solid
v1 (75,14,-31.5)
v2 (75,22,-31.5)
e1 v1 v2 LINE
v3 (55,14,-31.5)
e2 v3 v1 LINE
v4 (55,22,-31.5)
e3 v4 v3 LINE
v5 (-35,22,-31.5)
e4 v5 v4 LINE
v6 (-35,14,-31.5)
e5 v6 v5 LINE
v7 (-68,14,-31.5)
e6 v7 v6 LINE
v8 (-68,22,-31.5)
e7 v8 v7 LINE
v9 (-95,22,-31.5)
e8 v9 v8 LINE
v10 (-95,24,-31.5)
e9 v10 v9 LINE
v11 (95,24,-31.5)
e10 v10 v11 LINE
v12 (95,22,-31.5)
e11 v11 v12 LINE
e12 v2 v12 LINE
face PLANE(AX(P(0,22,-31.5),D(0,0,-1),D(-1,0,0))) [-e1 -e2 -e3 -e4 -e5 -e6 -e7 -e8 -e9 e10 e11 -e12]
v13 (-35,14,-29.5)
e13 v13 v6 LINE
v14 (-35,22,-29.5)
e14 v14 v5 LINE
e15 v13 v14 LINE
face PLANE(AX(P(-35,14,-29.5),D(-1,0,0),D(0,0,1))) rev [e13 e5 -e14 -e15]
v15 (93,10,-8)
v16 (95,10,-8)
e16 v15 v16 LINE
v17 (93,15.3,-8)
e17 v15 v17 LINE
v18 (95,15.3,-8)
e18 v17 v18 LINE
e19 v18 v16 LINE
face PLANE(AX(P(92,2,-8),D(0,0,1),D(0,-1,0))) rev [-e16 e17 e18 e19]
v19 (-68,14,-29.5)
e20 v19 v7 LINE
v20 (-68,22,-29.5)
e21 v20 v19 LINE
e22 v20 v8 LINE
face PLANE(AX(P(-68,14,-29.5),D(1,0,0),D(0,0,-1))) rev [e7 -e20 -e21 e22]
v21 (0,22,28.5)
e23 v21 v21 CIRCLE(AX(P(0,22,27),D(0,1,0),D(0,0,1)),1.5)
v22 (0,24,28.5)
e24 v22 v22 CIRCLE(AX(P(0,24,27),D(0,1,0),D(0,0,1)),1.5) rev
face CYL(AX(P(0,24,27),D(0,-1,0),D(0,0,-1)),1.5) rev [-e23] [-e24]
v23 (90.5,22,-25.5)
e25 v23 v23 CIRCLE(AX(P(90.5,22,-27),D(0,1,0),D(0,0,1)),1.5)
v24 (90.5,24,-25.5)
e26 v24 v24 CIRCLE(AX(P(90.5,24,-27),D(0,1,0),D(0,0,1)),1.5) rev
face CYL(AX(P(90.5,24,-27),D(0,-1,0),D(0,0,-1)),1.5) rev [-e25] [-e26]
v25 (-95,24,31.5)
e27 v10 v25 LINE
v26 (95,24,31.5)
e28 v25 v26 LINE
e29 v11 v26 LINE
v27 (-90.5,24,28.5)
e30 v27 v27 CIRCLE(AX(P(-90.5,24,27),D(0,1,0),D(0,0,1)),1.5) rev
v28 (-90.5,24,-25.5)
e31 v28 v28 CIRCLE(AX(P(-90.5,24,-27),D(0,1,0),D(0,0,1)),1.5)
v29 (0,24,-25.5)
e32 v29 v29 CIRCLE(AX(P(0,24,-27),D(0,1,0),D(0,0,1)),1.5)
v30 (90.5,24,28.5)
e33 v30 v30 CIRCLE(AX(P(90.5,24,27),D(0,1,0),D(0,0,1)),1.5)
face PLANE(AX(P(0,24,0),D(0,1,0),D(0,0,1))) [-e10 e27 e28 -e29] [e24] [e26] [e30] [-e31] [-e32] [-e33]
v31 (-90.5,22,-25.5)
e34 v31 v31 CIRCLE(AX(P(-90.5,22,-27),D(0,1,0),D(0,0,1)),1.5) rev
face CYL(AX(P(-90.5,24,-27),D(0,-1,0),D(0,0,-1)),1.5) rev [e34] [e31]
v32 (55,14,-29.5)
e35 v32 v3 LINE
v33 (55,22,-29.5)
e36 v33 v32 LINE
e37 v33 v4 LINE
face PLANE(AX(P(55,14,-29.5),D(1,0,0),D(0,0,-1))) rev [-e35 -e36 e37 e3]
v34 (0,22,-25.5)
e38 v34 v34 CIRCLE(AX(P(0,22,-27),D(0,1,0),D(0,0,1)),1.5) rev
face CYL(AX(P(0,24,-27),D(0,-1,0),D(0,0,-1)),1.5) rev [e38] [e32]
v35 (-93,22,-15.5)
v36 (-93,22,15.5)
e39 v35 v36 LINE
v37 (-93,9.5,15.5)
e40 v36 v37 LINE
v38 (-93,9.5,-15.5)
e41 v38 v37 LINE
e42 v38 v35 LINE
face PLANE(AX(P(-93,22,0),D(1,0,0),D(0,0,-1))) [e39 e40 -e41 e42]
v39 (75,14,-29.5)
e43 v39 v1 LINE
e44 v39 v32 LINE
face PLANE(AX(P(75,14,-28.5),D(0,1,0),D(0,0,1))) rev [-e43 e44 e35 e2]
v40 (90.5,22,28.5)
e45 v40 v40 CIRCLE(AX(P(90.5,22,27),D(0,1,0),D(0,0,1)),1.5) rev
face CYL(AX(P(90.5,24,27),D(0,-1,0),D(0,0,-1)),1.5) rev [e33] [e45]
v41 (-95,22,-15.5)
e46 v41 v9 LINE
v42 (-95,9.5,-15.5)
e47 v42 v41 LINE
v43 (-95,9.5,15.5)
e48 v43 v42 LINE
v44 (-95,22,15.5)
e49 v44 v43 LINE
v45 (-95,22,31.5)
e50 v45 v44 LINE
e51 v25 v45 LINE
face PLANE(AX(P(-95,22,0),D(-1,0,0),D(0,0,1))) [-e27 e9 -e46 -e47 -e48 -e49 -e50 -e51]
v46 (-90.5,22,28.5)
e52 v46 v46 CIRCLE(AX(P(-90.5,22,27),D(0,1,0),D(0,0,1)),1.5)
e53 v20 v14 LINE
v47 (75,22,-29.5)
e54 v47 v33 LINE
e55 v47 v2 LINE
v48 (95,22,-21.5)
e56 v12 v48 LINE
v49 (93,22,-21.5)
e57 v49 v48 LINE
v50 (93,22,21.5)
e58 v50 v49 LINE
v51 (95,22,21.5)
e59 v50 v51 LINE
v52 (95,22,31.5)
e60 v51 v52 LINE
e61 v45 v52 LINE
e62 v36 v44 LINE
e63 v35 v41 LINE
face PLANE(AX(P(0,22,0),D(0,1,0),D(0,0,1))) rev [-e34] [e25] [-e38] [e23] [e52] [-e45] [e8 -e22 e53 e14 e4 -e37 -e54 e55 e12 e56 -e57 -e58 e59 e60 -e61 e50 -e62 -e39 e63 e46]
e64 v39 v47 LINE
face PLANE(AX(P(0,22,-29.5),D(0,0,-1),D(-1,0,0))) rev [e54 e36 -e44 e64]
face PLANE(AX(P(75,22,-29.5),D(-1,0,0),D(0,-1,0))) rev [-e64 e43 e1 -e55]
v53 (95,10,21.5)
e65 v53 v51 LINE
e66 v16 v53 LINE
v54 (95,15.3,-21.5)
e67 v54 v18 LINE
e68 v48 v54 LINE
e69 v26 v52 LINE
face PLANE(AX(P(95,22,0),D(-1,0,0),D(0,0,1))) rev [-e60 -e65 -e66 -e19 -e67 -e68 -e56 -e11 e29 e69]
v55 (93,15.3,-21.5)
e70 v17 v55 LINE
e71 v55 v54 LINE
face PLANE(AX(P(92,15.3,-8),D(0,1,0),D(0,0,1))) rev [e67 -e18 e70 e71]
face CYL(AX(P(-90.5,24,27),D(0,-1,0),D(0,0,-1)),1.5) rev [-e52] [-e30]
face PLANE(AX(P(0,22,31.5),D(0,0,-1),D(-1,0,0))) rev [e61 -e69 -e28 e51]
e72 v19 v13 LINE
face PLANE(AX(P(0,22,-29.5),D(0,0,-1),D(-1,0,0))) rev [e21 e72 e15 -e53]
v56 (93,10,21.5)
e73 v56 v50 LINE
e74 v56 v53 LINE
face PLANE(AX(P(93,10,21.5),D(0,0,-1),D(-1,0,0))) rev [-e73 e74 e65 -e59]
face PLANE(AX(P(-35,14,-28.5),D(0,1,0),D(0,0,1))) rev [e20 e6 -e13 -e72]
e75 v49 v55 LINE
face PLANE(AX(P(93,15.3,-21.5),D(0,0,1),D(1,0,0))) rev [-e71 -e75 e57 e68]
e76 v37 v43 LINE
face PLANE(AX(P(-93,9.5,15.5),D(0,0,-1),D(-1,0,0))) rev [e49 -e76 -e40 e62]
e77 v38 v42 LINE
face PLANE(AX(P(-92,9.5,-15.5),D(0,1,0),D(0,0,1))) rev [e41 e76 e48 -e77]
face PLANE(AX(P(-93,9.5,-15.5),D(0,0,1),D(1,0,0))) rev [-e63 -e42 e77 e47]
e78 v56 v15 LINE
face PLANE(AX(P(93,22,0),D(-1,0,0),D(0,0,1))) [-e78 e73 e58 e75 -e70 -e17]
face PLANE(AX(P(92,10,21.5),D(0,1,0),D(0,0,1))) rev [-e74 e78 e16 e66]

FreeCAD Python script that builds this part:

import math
import FreeCAD as App
import Part
import Sketcher
Q = App.Units.Quantity


def add_polygon(sketch, points):
    """Adds a closed chain of lines whose ends are joined by coincident constraints."""
    first, n = sketch.GeometryCount, len(points)
    for a, b in zip(points, points[1:] + points[:1]):
        sketch.addGeometry(Part.LineSegment(App.Vector(*a, 0), App.Vector(*b, 0)), False)
    for i in range(n):
        sketch.addConstraint(Sketcher.Constraint("Coincident", first + i, 2, first + (i + 1) % n, 1))

doc = App.newDocument("Part")
body = doc.addObject("PartDesign::Body", "Body")

sketch1 = body.newObject("Sketcher::SketchObject", "Sketch")
sketch1.AttachmentSupport = (doc.getObject("XZ_Plane"), [""])
sketch1.MapMode = "FlatFace"
sketch1.addGeometry(Part.ArcOfCircle(Part.Circle(App.Vector(90.5, -27, 0), App.Vector(0, 0, 1), 4.5), math.radians(90), math.radians(180)), False)
sketch1.addGeometry(Part.LineSegment(App.Vector(86, -27, 0), App.Vector(86, -29.5, 0)), False)
sketch1.addGeometry(Part.LineSegment(App.Vector(86, -29.5, 0), App.Vector(4.5, -29.5, 0)), False)
sketch1.addGeometry(Part.LineSegment(App.Vector(4.5, -29.5, 0), App.Vector(4.5, -27, 0)), False)
sketch1.addGeometry(Part.ArcOfCircle(Part.Circle(App.Vector(0, -27, 0), App.Vector(0, 0, 1), 4.5), math.radians(0), math.radians(180)), False)
sketch1.addGeometry(Part.LineSegment(App.Vector(-4.5, -27, 0), App.Vector(-4.5, -29.5, 0)), False)
sketch1.addGeometry(Part.LineSegment(App.Vector(-4.5, -29.5, 0), App.Vector(-86, -29.5, 0)), False)
sketch1.addGeometry(Part.LineSegment(App.Vector(-86, -29.5, 0), App.Vector(-86, -27, 0)), False)
sketch1.addGeometry(Part.ArcOfCircle(Part.Circle(App.Vector(-90.5, -27, 0), App.Vector(0, 0, 1), 4.5), math.radians(0), math.radians(90)), False)
sketch1.addGeometry(Part.LineSegment(App.Vector(-90.5, -22.5, 0), App.Vector(-93, -22.5, 0)), False)
sketch1.addGeometry(Part.LineSegment(App.Vector(-93, -22.5, 0), App.Vector(-93, 22.5, 0)), False)
sketch1.addGeometry(Part.LineSegment(App.Vector(-93, 22.5, 0), App.Vector(-90.5, 22.5, 0)), False)
sketch1.addGeometry(Part.ArcOfCircle(Part.Circle(App.Vector(-90.5, 27, 0), App.Vector(0, 0, 1), 4.5), math.radians(-90), math.radians(0)), False)
sketch1.addGeometry(Part.LineSegment(App.Vector(-86, 27, 0), App.Vector(-86, 29.5, 0)), False)
sketch1.addGeometry(Part.LineSegment(App.Vector(-86, 29.5, 0), App.Vector(-4.5, 29.5, 0)), False)
sketch1.addGeometry(Part.LineSegment(App.Vector(-4.5, 29.5, 0), App.Vector(-4.5, 27, 0)), False)
sketch1.addGeometry(Part.ArcOfCircle(Part.Circle(App.Vector(0, 27, 0), App.Vector(0, 0, 1), 4.5), math.radians(180), math.radians(360)), False)
sketch1.addGeometry(Part.LineSegment(App.Vector(4.5, 27, 0), App.Vector(4.5, 29.5, 0)), False)
sketch1.addGeometry(Part.LineSegment(App.Vector(4.5, 29.5, 0), App.Vector(86, 29.5, 0)), False)
sketch1.addGeometry(Part.LineSegment(App.Vector(86, 29.5, 0), App.Vector(86, 27, 0)), False)
sketch1.addGeometry(Part.ArcOfCircle(Part.Circle(App.Vector(90.5, 27, 0), App.Vector(0, 0, 1), 4.5), math.radians(-180), math.radians(-90)), False)
sketch1.addGeometry(Part.LineSegment(App.Vector(90.5, 22.5, 0), App.Vector(93, 22.5, 0)), False)
sketch1.addGeometry(Part.LineSegment(App.Vector(93, 22.5, 0), App.Vector(93, -22.5, 0)), False)
sketch1.addGeometry(Part.LineSegment(App.Vector(93, -22.5, 0), App.Vector(90.5, -22.5, 0)), False)
sketch1.addConstraint(Sketcher.Constraint("Tangent", 0, 2, 1, 1))
sketch1.addConstraint(Sketcher.Constraint("Coincident", 1, 2, 2, 1))
sketch1.addConstraint(Sketcher.Constraint("Coincident", 2, 2, 3, 1))
sketch1.addConstraint(Sketcher.Constraint("Tangent", 3, 2, 4, 1))
sketch1.addConstraint(Sketcher.Constraint("Tangent", 4, 2, 5, 1))
sketch1.addConstraint(Sketcher.Constraint("Coincident", 5, 2, 6, 1))
sketch1.addConstraint(Sketcher.Constraint("Coincident", 6, 2, 7, 1))
sketch1.addConstraint(Sketcher.Constraint("Tangent", 7, 2, 8, 1))
sketch1.addConstraint(Sketcher.Constraint("Tangent", 8, 2, 9, 1))
sketch1.addConstraint(Sketcher.Constraint("Coincident", 9, 2, 10, 1))
sketch1.addConstraint(Sketcher.Constraint("Coincident", 10, 2, 11, 1))
sketch1.addConstraint(Sketcher.Constraint("Tangent", 11, 2, 12, 1))
sketch1.addConstraint(Sketcher.Constraint("Tangent", 12, 2, 13, 1))
sketch1.addConstraint(Sketcher.Constraint("Coincident", 13, 2, 14, 1))
sketch1.addConstraint(Sketcher.Constraint("Coincident", 14, 2, 15, 1))
sketch1.addConstraint(Sketcher.Constraint("Tangent", 15, 2, 16, 1))
sketch1.addConstraint(Sketcher.Constraint("Tangent", 16, 2, 17, 1))
sketch1.addConstraint(Sketcher.Constraint("Coincident", 17, 2, 18, 1))
sketch1.addConstraint(Sketcher.Constraint("Coincident", 18, 2, 19, 1))
sketch1.addConstraint(Sketcher.Constraint("Tangent", 19, 2, 20, 1))
sketch1.addConstraint(Sketcher.Constraint("Tangent", 20, 2, 21, 1))
sketch1.addConstraint(Sketcher.Constraint("Coincident", 21, 2, 22, 1))
sketch1.addConstraint(Sketcher.Constraint("Coincident", 22, 2, 23, 1))
sketch1.addConstraint(Sketcher.Constraint("Tangent", 23, 2, 0, 1))
sketch1.addConstraint(Sketcher.Constraint("Vertical", 1))
sketch1.addConstraint(Sketcher.Constraint("Horizontal", 2))
sketch1.addConstraint(Sketcher.Constraint("Vertical", 3))
sketch1.addConstraint(Sketcher.Constraint("Vertical", 5))
sketch1.addConstraint(Sketcher.Constraint("Horizontal", 6))
sketch1.addConstraint(Sketcher.Constraint("Vertical", 7))
sketch1.addConstraint(Sketcher.Constraint("Horizontal", 9))
sketch1.addConstraint(Sketcher.Constraint("Vertical", 10))
sketch1.addConstraint(Sketcher.Constraint("Horizontal", 11))
sketch1.addConstraint(Sketcher.Constraint("Vertical", 13))
sketch1.addConstraint(Sketcher.Constraint("Horizontal", 14))
sketch1.addConstraint(Sketcher.Constraint("Vertical", 15))
sketch1.addConstraint(Sketcher.Constraint("Vertical", 17))
sketch1.addConstraint(Sketcher.Constraint("Horizontal", 18))
sketch1.addConstraint(Sketcher.Constraint("Vertical", 19))
sketch1.addConstraint(Sketcher.Constraint("Horizontal", 21))
sketch1.addConstraint(Sketcher.Constraint("Vertical", 22))
sketch1.addConstraint(Sketcher.Constraint("Horizontal", 23))
sketch1.addConstraint(Sketcher.Constraint("Equal", 0, 4))
sketch1.addConstraint(Sketcher.Constraint("Equal", 4, 8))
sketch1.addConstraint(Sketcher.Constraint("Equal", 8, 12))
sketch1.addConstraint(Sketcher.Constraint("Equal", 12, 16))
sketch1.addConstraint(Sketcher.Constraint("Equal", 16, 20))
sketch1.addConstraint(Sketcher.Constraint("Symmetric", 0, 3, 12, 3, -1, 1))
sketch1.addConstraint(Sketcher.Constraint("Symmetric", 4, 3, 16, 3, -1, 1))
sketch1.addConstraint(Sketcher.Constraint("Symmetric", 8, 3, 20, 3, -1, 1))
sketch1.addConstraint(Sketcher.Constraint("Symmetric", 0, 3, 8, 3, -2))
sketch1.addConstraint(Sketcher.Constraint("Symmetric", 2, 2, 5, 2, -2))
sketch1.addConstraint(Sketcher.Constraint("Horizontal", 0, 3, 4, 3))
sketch1.addConstraint(Sketcher.Constraint("Horizontal", 14, 2, 17, 2))
sketch1.addConstraint(Sketcher.Constraint("Equal", 11, 21))
sketch1.addConstraint(Sketcher.Constraint("Equal", 23, 1))
sketch1.addConstraint(Sketcher.Constraint("Equal", 7, 13))
sketch1.addConstraint(Sketcher.Constraint("Radius", 0, Q("4.5 mm")))
sketch1.addConstraint(Sketcher.Constraint("DistanceY", 10, 1, 10, 2, Q("45 mm")))
sketch1.addConstraint(Sketcher.Constraint("DistanceX", 2, 2, 2, 1, Q("81.5 mm")))
sketch1.addConstraint(Sketcher.Constraint("DistanceX", 9, 2, 9, 1, Q("2.5 mm")))
pad1 = body.newObject("PartDesign::Pad", "Pad")
pad1.Profile = sketch1
pad1.Length = 2
pad1.Reversed = True
body2 = doc.addObject("PartDesign::Body", "Body001")

sketch2 = body2.newObject("Sketcher::SketchObject", "Sketch001")
sketch2.AttachmentSupport = (doc.getObject("XZ_Plane001"), [""])
sketch2.MapMode = "FlatFace"
sketch2.addGeometry(Part.Circle(App.Vector(90.5, -27, 0), App.Vector(0, 0, 1), 1.5), False)
sketch2.addConstraint(Sketcher.Constraint("Diameter", 0, Q("3 mm")))
sketch2.addConstraint(Sketcher.Constraint("DistanceY", 0, 3, -1, 1, Q("27 mm")))
sketch2.addConstraint(Sketcher.Constraint("DistanceX", -1, 1, 0, 3, Q("90.5 mm")))
pad2 = body2.newObject("PartDesign::Pad", "Pad001")
pad2.Profile = sketch2
pad2.Length = 19
pad2.Reversed = True
body3 = doc.addObject("PartDesign::Body", "Body002")

sketch3 = body3.newObject("Sketcher::SketchObject", "Sketch002")
sketch3.AttachmentSupport = (doc.getObject("XZ_Plane002"), [""])
sketch3.MapMode = "FlatFace"
sketch3.addGeometry(Part.Circle(App.Vector(90.5, 27, 0), App.Vector(0, 0, 1), 1.5), False)
sketch3.addConstraint(Sketcher.Constraint("Diameter", 0, Q("3 mm")))
sketch3.addConstraint(Sketcher.Constraint("DistanceY", -1, 1, 0, 3, Q("27 mm")))
sketch3.addConstraint(Sketcher.Constraint("DistanceX", -1, 1, 0, 3, Q("90.5 mm")))
pad3 = body3.newObject("PartDesign::Pad", "Pad002")
pad3.Profile = sketch3
pad3.Length = 19
pad3.Reversed = True
body4 = doc.addObject("PartDesign::Body", "Body003")

sketch4 = body4.newObject("Sketcher::SketchObject", "Sketch003")
sketch4.AttachmentSupport = (doc.getObject("XZ_Plane003"), [""])
sketch4.MapMode = "FlatFace"
sketch4.addGeometry(Part.Circle(App.Vector(0, 27, 0), App.Vector(0, 0, 1), 1.5), False)
sketch4.addConstraint(Sketcher.Constraint("PointOnObject", 0, 3, -2))
sketch4.addConstraint(Sketcher.Constraint("Diameter", 0, Q("3 mm")))
sketch4.addConstraint(Sketcher.Constraint("DistanceY", -1, 1, 0, 3, Q("27 mm")))
pad4 = body4.newObject("PartDesign::Pad", "Pad003")
pad4.Profile = sketch4
pad4.Length = 19
pad4.Reversed = True
body5 = doc.addObject("PartDesign::Body", "Body004")

sketch5 = body5.newObject("Sketcher::SketchObject", "Sketch004")
sketch5.AttachmentSupport = (doc.getObject("XZ_Plane004"), [""])
sketch5.MapMode = "FlatFace"
sketch5.addGeometry(Part.Circle(App.Vector(0, -27, 0), App.Vector(0, 0, 1), 1.5), False)
sketch5.addConstraint(Sketcher.Constraint("PointOnObject", 0, 3, -2))
sketch5.addConstraint(Sketcher.Constraint("Diameter", 0, Q("3 mm")))
sketch5.addConstraint(Sketcher.Constraint("DistanceY", 0, 3, -1, 1, Q("27 mm")))
pad5 = body5.newObject("PartDesign::Pad", "Pad004")
pad5.Profile = sketch5
pad5.Length = 19
pad5.Reversed = True
body6 = doc.addObject("PartDesign::Body", "Body005")

sketch6 = body6.newObject("Sketcher::SketchObject", "Sketch005")
sketch6.AttachmentSupport = (doc.getObject("XZ_Plane005"), [""])
sketch6.MapMode = "FlatFace"
sketch6.addGeometry(Part.Circle(App.Vector(-90.5, -27, 0), App.Vector(0, 0, 1), 1.5), False)
sketch6.addConstraint(Sketcher.Constraint("Diameter", 0, Q("3 mm")))
sketch6.addConstraint(Sketcher.Constraint("DistanceY", 0, 3, -1, 1, Q("27 mm")))
sketch6.addConstraint(Sketcher.Constraint("DistanceX", 0, 3, -1, 1, Q("90.5 mm")))
pad6 = body6.newObject("PartDesign::Pad", "Pad005")
pad6.Profile = sketch6
pad6.Length = 19
pad6.Reversed = True
body7 = doc.addObject("PartDesign::Body", "Body006")

sketch7 = body7.newObject("Sketcher::SketchObject", "Sketch006")
sketch7.AttachmentSupport = (doc.getObject("XZ_Plane006"), [""])
sketch7.MapMode = "FlatFace"
sketch7.addGeometry(Part.Circle(App.Vector(-90.5, 27, 0), App.Vector(0, 0, 1), 1.5), False)
sketch7.addConstraint(Sketcher.Constraint("Diameter", 0, Q("3 mm")))
sketch7.addConstraint(Sketcher.Constraint("DistanceY", -1, 1, 0, 3, Q("27 mm")))
sketch7.addConstraint(Sketcher.Constraint("DistanceX", 0, 3, -1, 1, Q("90.5 mm")))
pad7 = body7.newObject("PartDesign::Pad", "Pad006")
pad7.Profile = sketch7
pad7.Length = 19
pad7.Reversed = True
body2.AllowCompound = True
doc.recompute()

boolean = body2.newObject("PartDesign::Boolean", "Boolean")
boolean.Type = "Fuse"
boolean.addObjects([body3])
doc.recompute()

boolean2 = body2.newObject("PartDesign::Boolean", "Boolean001")
boolean2.Type = "Fuse"
boolean2.addObjects([body4])
doc.recompute()

boolean3 = body2.newObject("PartDesign::Boolean", "Boolean002")
boolean3.Type = "Fuse"
boolean3.addObjects([body5])
doc.recompute()

boolean4 = body2.newObject("PartDesign::Boolean", "Boolean003")
boolean4.Type = "Fuse"
boolean4.addObjects([body6])
doc.recompute()

boolean5 = body2.newObject("PartDesign::Boolean", "Boolean004")
boolean5.Type = "Fuse"
boolean5.addObjects([body7])

sketch8 = body2.newObject("Sketcher::SketchObject", "Sketch007")
sketch8.AttachmentSupport = (doc.getObject("XZ_Plane001"), [""])
sketch8.MapMode = "FlatFace"
add_polygon(sketch8, [(92, -24.401924), (93.5, -27), (92, -29.598076), (89, -29.598076), (87.5, -27), (89, -24.401924)])
sketch8.addGeometry(Part.Circle(App.Vector(90.5, -27, 0), App.Vector(0, 0, 1), 1.5), False)
add_polygon(sketch8, [(89, 29.598076), (92, 29.598076), (93.5, 27), (92, 24.401924), (89, 24.401924), (87.5, 27)])
sketch8.addGeometry(Part.Circle(App.Vector(90.5, 27, 0), App.Vector(0, 0, 1), 1.5), False)
add_polygon(sketch8, [(1.5, 29.598076), (3, 27), (1.5, 24.401924), (-1.5, 24.401924), (-3, 27), (-1.5, 29.598076)])
sketch8.addGeometry(Part.Circle(App.Vector(0, 27, 0), App.Vector(0, 0, 1), 1.5), False)
add_polygon(sketch8, [(-1.5, -24.401924), (1.5, -24.401924), (3, -27), (1.5, -29.598076), (-1.5, -29.598076), (-3, -27)])
sketch8.addGeometry(Part.Circle(App.Vector(0, -27, 0), App.Vector(0, 0, 1), 1.5), False)
add_polygon(sketch8, [(-92, 24.401924), (-93.5, 27), (-92, 29.598076), (-89, 29.598076), (-87.5, 27), (-89, 24.401924)])
sketch8.addGeometry(Part.Circle(App.Vector(-90.5, 27, 0), App.Vector(0, 0, 1), 1.5), False)
add_polygon(sketch8, [(-89, -29.598076), (-92, -29.598076), (-93.5, -27), (-92, -24.401924), (-89, -24.401924), (-87.5, -27)])
sketch8.addGeometry(Part.Circle(App.Vector(-90.5, -27, 0), App.Vector(0, 0, 1), 1.5), False)
sketch8.addConstraint(Sketcher.Constraint("Horizontal", 2))
sketch8.addConstraint(Sketcher.Constraint("Horizontal", 5))
sketch8.addConstraint(Sketcher.Constraint("Horizontal", 7))
sketch8.addConstraint(Sketcher.Constraint("Horizontal", 10))
sketch8.addConstraint(Sketcher.Constraint("Horizontal", 16))
sketch8.addConstraint(Sketcher.Constraint("Horizontal", 19))
sketch8.addConstraint(Sketcher.Constraint("Horizontal", 21))
sketch8.addConstraint(Sketcher.Constraint("Horizontal", 24))
sketch8.addConstraint(Sketcher.Constraint("Horizontal", 30))
sketch8.addConstraint(Sketcher.Constraint("Horizontal", 33))
sketch8.addConstraint(Sketcher.Constraint("Horizontal", 35))
sketch8.addConstraint(Sketcher.Constraint("Horizontal", 38))
sketch8.addConstraint(Sketcher.Constraint("Equal", 6, 13))
sketch8.addConstraint(Sketcher.Constraint("Equal", 13, 20))
sketch8.addConstraint(Sketcher.Constraint("Equal", 20, 27))
sketch8.addConstraint(Sketcher.Constraint("Equal", 27, 34))
sketch8.addConstraint(Sketcher.Constraint("Equal", 34, 41))
sketch8.addConstraint(Sketcher.Constraint("Symmetric", 20, 3, 27, 3, -1, 1))
sketch8.addConstraint(Sketcher.Constraint("Symmetric", 6, 3, 34, 3, -1, 1))
sketch8.addConstraint(Sketcher.Constraint("Symmetric", 13, 3, 41, 3, -1, 1))
sketch8.addConstraint(Sketcher.Constraint("Symmetric", 16, 2, 21, 2, -1, 1))
sketch8.addConstraint(Sketcher.Constraint("Symmetric", 17, 2, 22, 2, -1, 1))
sketch8.addConstraint(Sketcher.Constraint("Symmetric", 18, 2, 23, 2, -1, 1))
sketch8.addConstraint(Sketcher.Constraint("Symmetric", 14, 2, 25, 2, -1, 1))
sketch8.addConstraint(Sketcher.Constraint("Symmetric", 0, 2, 28, 2, -1, 1))
sketch8.addConstraint(Sketcher.Constraint("Symmetric", 1, 2, 29, 2, -1, 1))
sketch8.addConstraint(Sketcher.Constraint("Symmetric", 3, 2, 31, 2, -1, 1))
sketch8.addConstraint(Sketcher.Constraint("Symmetric", 4, 2, 32, 2, -1, 1))
sketch8.addConstraint(Sketcher.Constraint("Symmetric", 7, 2, 35, 2, -1, 1))
sketch8.addConstraint(Sketcher.Constraint("Symmetric", 8, 2, 36, 2, -1, 1))
sketch8.addConstraint(Sketcher.Constraint("Symmetric", 9, 2, 37, 2, -1, 1))
sketch8.addConstraint(Sketcher.Constraint("Symmetric", 11, 2, 39, 2, -1, 1))
sketch8.addConstraint(Sketcher.Constraint("Symmetric", 13, 3, 34, 3, -2))
sketch8.addConstraint(Sketcher.Constraint("Symmetric", 14, 2, 17, 2, -2))
sketch8.addConstraint(Sketcher.Constraint("Symmetric", 8, 2, 28, 2, -2))
sketch8.addConstraint(Sketcher.Constraint("Symmetric", 7, 2, 29, 2, -2))
sketch8.addConstraint(Sketcher.Constraint("Symmetric", 11, 2, 31, 2, -2))
sketch8.addConstraint(Sketcher.Constraint("Symmetric", 10, 2, 32, 2, -2))
sketch8.addConstraint(Sketcher.Constraint("PointOnObject", 20, 3, -2))
sketch8.addConstraint(Sketcher.Constraint("Parallel", 0, 3))
sketch8.addConstraint(Sketcher.Constraint("Parallel", 1, 4))
sketch8.addConstraint(Sketcher.Constraint("Parallel", 3, 8))
sketch8.addConstraint(Sketcher.Constraint("Parallel", 4, 9))
sketch8.addConstraint(Sketcher.Constraint("Parallel", 9, 12))
sketch8.addConstraint(Sketcher.Constraint("Parallel", 11, 14))
sketch8.addConstraint(Sketcher.Constraint("Parallel", 12, 15))
sketch8.addConstraint(Sketcher.Constraint("Parallel", 14, 17))
sketch8.addConstraint(Sketcher.Constraint("Parallel", 15, 18))
sketch8.addConstraint(Sketcher.Constraint("Parallel", 22, 25))
sketch8.addConstraint(Sketcher.Constraint("Parallel", 23, 26))
sketch8.addConstraint(Sketcher.Constraint("Parallel", 25, 28))
sketch8.addConstraint(Sketcher.Constraint("Parallel", 28, 31))
sketch8.addConstraint(Sketcher.Constraint("Parallel", 36, 39))
sketch8.addConstraint(Sketcher.Constraint("Parallel", 37, 40))
sketch8.addConstraint(Sketcher.Constraint("Horizontal", 13, 3, 20, 3))
sketch8.addConstraint(Sketcher.Constraint("Horizontal", 41, 3, 0, 2))
sketch8.addConstraint(Sketcher.Constraint("Horizontal", 0, 2, 3, 2))
sketch8.addConstraint(Sketcher.Constraint("Horizontal", 11, 2, 14, 2))
sketch8.addConstraint(Sketcher.Constraint("Horizontal", 10, 2, 15, 2))
sketch8.addConstraint(Sketcher.Constraint("Horizontal", 12, 2, 18, 2))
sketch8.addConstraint(Sketcher.Constraint("Vertical", 2, 2, 4, 2))
sketch8.addConstraint(Sketcher.Constraint("Equal", 10, 16))
sketch8.addConstraint(Sketcher.Constraint("Diameter", 6, Q("3 mm")))
sketch8.addConstraint(Sketcher.Constraint("DistanceX", 2, 2, 2, 1, Q("3 mm")))
sketch8.addConstraint(Sketcher.Constraint("Angle", 0, Q("-60 deg")))
sketch8.addConstraint(Sketcher.Constraint("Distance", 0, Q("3 mm")))
sketch8.addConstraint(Sketcher.Constraint("DistanceY", 6, 3, -1, 1, Q("27 mm")))
sketch8.addConstraint(Sketcher.Constraint("DistanceX", -1, 1, 1, 2, Q("92 mm")))
sketch8.addConstraint(Sketcher.Constraint("DistanceX", 34, 3, 13, 3, Q("181 mm")))
pad8 = body2.newObject("PartDesign::Pad", "Pad007")
pad8.Profile = sketch8
pad8.Length = 20
pad8.Reversed = True
body.AllowCompound = True
doc.recompute()

boolean6 = body.newObject("PartDesign::Boolean", "Boolean005")
boolean6.Type = "Fuse"
boolean6.addObjects([body2])

sketch9 = body.newObject("Sketcher::SketchObject", "Sketch008")
sketch9.AttachmentSupport = (doc.getObject("XZ_Plane"), [""])
sketch9.MapMode = "FlatFace"
add_polygon(sketch9, [(-95, 31.5), (95, 31.5), (95, -31.5), (-95, -31.5)])
add_polygon(sketch9, [(-87.5, 27), (-89, 29.598076), (-92, 29.598076), (-93.5, 27), (-92, 24.401924), (-89, 24.401924)])
add_polygon(sketch9, [(-3, 27), (-1.5, 24.401924), (1.5, 24.401924), (3, 27), (1.5, 29.598076), (-1.5, 29.598076)])
add_polygon(sketch9, [(93.5, 27), (92, 29.598076), (89, 29.598076), (87.5, 27), (89, 24.401924), (92, 24.401924)])
sketch9.addGeometry(Part.LineSegment(App.Vector(-90.5, 22.5, 0), App.Vector(-93, 22.5, 0)), False)
sketch9.addGeometry(Part.LineSegment(App.Vector(-93, 22.5, 0), App.Vector(-93, -22.5, 0)), False)
sketch9.addGeometry(Part.LineSegment(App.Vector(-93, -22.5, 0), App.Vector(-90.5, -22.5, 0)), False)
sketch9.addGeometry(Part.ArcOfCircle(Part.Circle(App.Vector(-90.5, -27, 0), App.Vector(0, 0, 1), 4.5), math.radians(0), math.radians(90)), False)
sketch9.addGeometry(Part.LineSegment(App.Vector(-86, -27, 0), App.Vector(-86, -29.5, 0)), False)
sketch9.addGeometry(Part.LineSegment(App.Vector(-86, -29.5, 0), App.Vector(-4.5, -29.5, 0)), False)
sketch9.addGeometry(Part.LineSegment(App.Vector(-4.5, -29.5, 0), App.Vector(-4.5, -27, 0)), False)
sketch9.addGeometry(Part.ArcOfCircle(Part.Circle(App.Vector(0, -27, 0), App.Vector(0, 0, 1), 4.5), math.radians(0), math.radians(180)), False)
sketch9.addGeometry(Part.LineSegment(App.Vector(4.5, -27, 0), App.Vector(4.5, -29.5, 0)), False)
sketch9.addGeometry(Part.LineSegment(App.Vector(4.5, -29.5, 0), App.Vector(86, -29.5, 0)), False)
sketch9.addGeometry(Part.LineSegment(App.Vector(86, -29.5, 0), App.Vector(86, -27, 0)), False)
sketch9.addGeometry(Part.ArcOfCircle(Part.Circle(App.Vector(90.5, -27, 0), App.Vector(0, 0, 1), 4.5), math.radians(90), math.radians(180)), False)
sketch9.addGeometry(Part.LineSegment(App.Vector(90.5, -22.5, 0), App.Vector(93, -22.5, 0)), False)
sketch9.addGeometry(Part.LineSegment(App.Vector(93, -22.5, 0), App.Vector(93, 22.5, 0)), False)
sketch9.addGeometry(Part.LineSegment(App.Vector(93, 22.5, 0), App.Vector(90.5, 22.5, 0)), False)
sketch9.addGeometry(Part.ArcOfCircle(Part.Circle(App.Vector(90.5, 27, 0), App.Vector(0, 0, 1), 4.5), math.radians(-180), math.radians(-90)), False)
sketch9.addGeometry(Part.LineSegment(App.Vector(86, 27, 0), App.Vector(86, 29.5, 0)), False)
sketch9.addGeometry(Part.LineSegment(App.Vector(86, 29.5, 0), App.Vector(4.5, 29.5, 0)), False)
sketch9.addGeometry(Part.LineSegment(App.Vector(4.5, 29.5, 0), App.Vector(4.5, 27, 0)), False)
sketch9.addGeometry(Part.ArcOfCircle(Part.Circle(App.Vector(0, 27, 0), App.Vector(0, 0, 1), 4.5), math.radians(180), math.radians(360)), False)
sketch9.addGeometry(Part.LineSegment(App.Vector(-4.5, 27, 0), App.Vector(-4.5, 29.5, 0)), False)
sketch9.addGeometry(Part.LineSegment(App.Vector(-4.5, 29.5, 0), App.Vector(-86, 29.5, 0)), False)
sketch9.addGeometry(Part.LineSegment(App.Vector(-86, 29.5, 0), App.Vector(-86, 27, 0)), False)
sketch9.addGeometry(Part.ArcOfCircle(Part.Circle(App.Vector(-90.5, 27, 0), App.Vector(0, 0, 1), 4.5), math.radians(-90), math.radians(0)), False)
add_polygon(sketch9, [(-89, -24.401924), (-92, -24.401924), (-93.5, -27), (-92, -29.598076), (-89, -29.598076), (-87.5, -27)])
add_polygon(sketch9, [(-1.5, -29.598076), (1.5, -29.598076), (3, -27), (1.5, -24.401924), (-1.5, -24.401924), (-3, -27)])
add_polygon(sketch9, [(87.5, -27), (89, -29.598076), (92, -29.598076), (93.5, -27), (92, -24.401924), (89, -24.401924)])
sketch9.addConstraint(Sketcher.Constraint("Coincident", 22, 2, 23, 1))
sketch9.addConstraint(Sketcher.Constraint("Coincident", 23, 2, 24, 1))
sketch9.addConstraint(Sketcher.Constraint("Tangent", 24, 2, 25, 2))
sketch9.addConstraint(Sketcher.Constraint("Tangent", 25, 1, 26, 1))
sketch9.addConstraint(Sketcher.Constraint("Coincident", 26, 2, 27, 1))
sketch9.addConstraint(Sketcher.Constraint("Coincident", 27, 2, 28, 1))
sketch9.addConstraint(Sketcher.Constraint("Tangent", 28, 2, 29, 2))
sketch9.addConstraint(Sketcher.Constraint("Tangent", 29, 1, 30, 1))
sketch9.addConstraint(Sketcher.Constraint("Coincident", 30, 2, 31, 1))
sketch9.addConstraint(Sketcher.Constraint("Coincident", 31, 2, 32, 1))
sketch9.addConstraint(Sketcher.Constraint("Tangent", 32, 2, 33, 2))
sketch9.addConstraint(Sketcher.Constraint("Tangent", 33, 1, 34, 1))
sketch9.addConstraint(Sketcher.Constraint("Coincident", 34, 2, 35, 1))
sketch9.addConstraint(Sketcher.Constraint("Coincident", 35, 2, 36, 1))
sketch9.addConstraint(Sketcher.Constraint("Tangent", 36, 2, 37, 2))
sketch9.addConstraint(Sketcher.Constraint("Tangent", 37, 1, 38, 1))
sketch9.addConstraint(Sketcher.Constraint("Coincident", 38, 2, 39, 1))
sketch9.addConstraint(Sketcher.Constraint("Coincident", 39, 2, 40, 1))
sketch9.addConstraint(Sketcher.Constraint("Tangent", 40, 2, 41, 2))
sketch9.addConstraint(Sketcher.Constraint("Tangent", 41, 1, 42, 1))
sketch9.addConstraint(Sketcher.Constraint("Coincident", 42, 2, 43, 1))
sketch9.addConstraint(Sketcher.Constraint("Coincident", 43, 2, 44, 1))
sketch9.addConstraint(Sketcher.Constraint("Tangent", 44, 2, 45, 2))
sketch9.addConstraint(Sketcher.Constraint("Tangent", 45, 1, 22, 1))
sketch9.addConstraint(Sketcher.Constraint("Horizontal", 0))
sketch9.addConstraint(Sketcher.Constraint("Vertical", 1))
sketch9.addConstraint(Sketcher.Constraint("Horizontal", 2))
sketch9.addConstraint(Sketcher.Constraint("Vertical", 3))
sketch9.addConstraint(Sketcher.Constraint("Horizontal", 5))
sketch9.addConstraint(Sketcher.Constraint("Horizontal", 8))
sketch9.addConstraint(Sketcher.Constraint("Horizontal", 11))
sketch9.addConstraint(Sketcher.Constraint("Horizontal", 14))
sketch9.addConstraint(Sketcher.Constraint("Horizontal", 17))
sketch9.addConstraint(Sketcher.Constraint("Horizontal", 20))
sketch9.addConstraint(Sketcher.Constraint("Horizontal", 22))
sketch9.addConstraint(Sketcher.Constraint("Vertical", 23))
sketch9.addConstraint(Sketcher.Constraint("Horizontal", 24))
sketch9.addConstraint(Sketcher.Constraint("Vertical", 26))
sketch9.addConstraint(Sketcher.Constraint("Horizontal", 27))
sketch9.addConstraint(Sketcher.Constraint("Vertical", 28))
sketch9.addConstraint(Sketcher.Constraint("Vertical", 30))
sketch9.addConstraint(Sketcher.Constraint("Horizontal", 31))
sketch9.addConstraint(Sketcher.Constraint("Vertical", 32))
sketch9.addConstraint(Sketcher.Constraint("Horizontal", 34))
sketch9.addConstraint(Sketcher.Constraint("Vertical", 35))
sketch9.addConstraint(Sketcher.Constraint("Horizontal", 36))
sketch9.addConstraint(Sketcher.Constraint("Vertical", 38))
sketch9.addConstraint(Sketcher.Constraint("Horizontal", 39))
sketch9.addConstraint(Sketcher.Constraint("Vertical", 40))
sketch9.addConstraint(Sketcher.Constraint("Vertical", 42))
sketch9.addConstraint(Sketcher.Constraint("Horizontal", 43))
sketch9.addConstraint(Sketcher.Constraint("Vertical", 44))
sketch9.addConstraint(Sketcher.Constraint("Horizontal", 46))
sketch9.addConstraint(Sketcher.Constraint("Horizontal", 49))
sketch9.addConstraint(Sketcher.Constraint("Horizontal", 52))
sketch9.addConstraint(Sketcher.Constraint("Horizontal", 55))
sketch9.addConstraint(Sketcher.Constraint("Horizontal", 59))
sketch9.addConstraint(Sketcher.Constraint("Horizontal", 62))
sketch9.addConstraint(Sketcher.Constraint("Equal", 25, 29))
sketch9.addConstraint(Sketcher.Constraint("Equal", 29, 33))
sketch9.addConstraint(Sketcher.Constraint("Equal", 33, 37))
sketch9.addConstraint(Sketcher.Constraint("Equal", 37, 41))
sketch9.addConstraint(Sketcher.Constraint("Equal", 41, 45))
sketch9.addConstraint(Sketcher.Constraint("Symmetric", 25, 3, 37, 3, -1, 1))
sketch9.addConstraint(Sketcher.Constraint("Symmetric", 29, 3, 41, 3, -1, 1))
sketch9.addConstraint(Sketcher.Constraint("Symmetric", 33, 3, 45, 3, -1, 1))
sketch9.addConstraint(Sketcher.Constraint("Symmetric", 0, 2, 2, 2, -1, 1))
sketch9.addConstraint(Sketcher.Constraint("Symmetric", 20, 2, 46, 2, -1, 1))
sketch9.addConstraint(Sketcher.Constraint("Symmetric", 21, 2, 47, 2, -1, 1))
sketch9.addConstraint(Sketcher.Constraint("Symmetric", 16, 2, 48, 2, -1, 1))
sketch9.addConstraint(Sketcher.Constraint("Symmetric", 18, 2, 50, 2, -1, 1))
sketch9.addConstraint(Sketcher.Constraint("Symmetric", 14, 2, 52, 2, -1, 1))
sketch9.addConstraint(Sketcher.Constraint("Symmetric", 15, 2, 53, 2, -1, 1))
sketch9.addConstraint(Sketcher.Constraint("Symmetric", 10, 2, 54, 2, -1, 1))
sketch9.addConstraint(Sketcher.Constraint("Symmetric", 12, 2, 56, 2, -1, 1))
sketch9.addConstraint(Sketcher.Constraint("Symmetric", 4, 2, 58, 2, -1, 1))
sketch9.addConstraint(Sketcher.Constraint("Symmetric", 6, 2, 60, 2, -1, 1))
sketch9.addConstraint(Sketcher.Constraint("Symmetric", 7, 2, 61, 2, -1, 1))
sketch9.addConstraint(Sketcher.Constraint("Symmetric", 9, 2, 63, 2, -1, 1))
sketch9.addConstraint(Sketcher.Constraint("Symmetric", 25, 3, 33, 3, -2))
sketch9.addConstraint(Sketcher.Constraint("Symmetric", 12, 2, 15, 2, -2))
sketch9.addConstraint(Sketcher.Constraint("Symmetric", 5, 2, 16, 2, -2))
sketch9.addConstraint(Sketcher.Constraint("Symmetric", 9, 2, 18, 2, -2))
sketch9.addConstraint(Sketcher.Constraint("Symmetric", 8, 2, 19, 2, -2))
sketch9.addConstraint(Sketcher.Constraint("Symmetric", 6, 2, 21, 2, -2))
sketch9.addConstraint(Sketcher.Constraint("Symmetric", 27, 2, 30, 2, -2))
sketch9.addConstraint(Sketcher.Constraint("Parallel", 4, 7))
sketch9.addConstraint(Sketcher.Constraint("Parallel", 6, 9))
sketch9.addConstraint(Sketcher.Constraint("Parallel", 7, 10))
sketch9.addConstraint(Sketcher.Constraint("Parallel", 9, 12))
sketch9.addConstraint(Sketcher.Constraint("Parallel", 10, 13))
sketch9.addConstraint(Sketcher.Constraint("Parallel", 12, 15))
sketch9.addConstraint(Sketcher.Constraint("Parallel", 13, 16))
sketch9.addConstraint(Sketcher.Constraint("Parallel", 15, 18))
sketch9.addConstraint(Sketcher.Constraint("Parallel", 18, 21))
sketch9.addConstraint(Sketcher.Constraint("Parallel", 47, 50))
sketch9.addConstraint(Sketcher.Constraint("Parallel", 48, 51))
sketch9.addConstraint(Sketcher.Constraint("Parallel", 53, 56))
sketch9.addConstraint(Sketcher.Constraint("Parallel", 54, 57))
sketch9.addConstraint(Sketcher.Constraint("Parallel", 56, 60))
sketch9.addConstraint(Sketcher.Constraint("Parallel", 60, 63))
sketch9.addConstraint(Sketcher.Constraint("Horizontal", 25, 3, 29, 3))
sketch9.addConstraint(Sketcher.Constraint("Horizontal", 45, 3, 6, 2))
sketch9.addConstraint(Sketcher.Constraint("Horizontal", 6, 2, 9, 2))
sketch9.addConstraint(Sketcher.Constraint("Horizontal", 8, 2, 10, 2))
sketch9.addConstraint(Sketcher.Constraint("Horizontal", 9, 2, 12, 2))
sketch9.addConstraint(Sketcher.Constraint("Horizontal", 5, 2, 13, 2))
sketch9.addConstraint(Sketcher.Constraint("Horizontal", 39, 2, 42, 2))
sketch9.addConstraint(Sketcher.Constraint("Vertical", 5, 2, 7, 2))
sketch9.addConstraint(Sketcher.Constraint("Equal", 8, 11))
sketch9.addConstraint(Sketcher.Constraint("Equal", 24, 34))
sketch9.addConstraint(Sketcher.Constraint("Equal", 36, 26))
sketch9.addConstraint(Sketcher.Constraint("Equal", 32, 38))
sketch9.addConstraint(Sketcher.Constraint("Radius", 25, Q("4.5 mm")))
sketch9.addConstraint(Sketcher.Constraint("DistanceX", 0, 1, 0, 2, Q("190 mm")))
sketch9.addConstraint(Sketcher.Constraint("DistanceX", 5, 2, 5, 1, Q("3 mm")))
sketch9.addConstraint(Sketcher.Constraint("DistanceY", 1, 2, 1, 1, Q("63 mm")))
sketch9.addConstraint(Sketcher.Constraint("DistanceY", 23, 2, 23, 1, Q("45 mm")))
sketch9.addConstraint(Sketcher.Constraint("Angle", 4, Q("120 deg")))
sketch9.addConstraint(Sketcher.Constraint("Distance", 4, Q("3 mm")))
sketch9.addConstraint(Sketcher.Constraint("DistanceX", 22, 2, 22, 1, Q("2.5 mm")))
sketch9.addConstraint(Sketcher.Constraint("DistanceX", 27, 1, 27, 2, Q("81.5 mm")))
sketch9.addConstraint(Sketcher.Constraint("DistanceX", 4, 2, -1, 1, Q("89 mm")))
pad9 = body.newObject("PartDesign::Pad", "Pad008")
pad9.Profile = sketch9
pad9.Length = 22
pad9.Reversed = True

sketch10 = body.newObject("Sketcher::SketchObject", "Sketch009")
sketch10.AttachmentSupport = (doc.getObject("YZ_Plane"), [""])
sketch10.MapMode = "FlatFace"
sketch10.AttachmentOffset = App.Placement(App.Vector(0, 0, 95), App.Rotation())
add_polygon(sketch10, [(10, 21.5), (2, 21.5), (2, -1.5), (10, -1.5)])
add_polygon(sketch10, [(15.3, -8), (2, -8), (2, -21.5), (15.3, -21.5)])
sketch10.addConstraint(Sketcher.Constraint("Horizontal", 0))
sketch10.addConstraint(Sketcher.Constraint("Vertical", 1))
sketch10.addConstraint(Sketcher.Constraint("Horizontal", 2))
sketch10.addConstraint(Sketcher.Constraint("Vertical", 3))
sketch10.addConstraint(Sketcher.Constraint("Horizontal", 4))
sketch10.addConstraint(Sketcher.Constraint("Vertical", 5))
sketch10.addConstraint(Sketcher.Constraint("Horizontal", 6))
sketch10.addConstraint(Sketcher.Constraint("Vertical", 7))
sketch10.addConstraint(Sketcher.Constraint("Symmetric", 0, 2, 5, 2, -1))
sketch10.addConstraint(Sketcher.Constraint("DistanceX", 0, 2, 0, 1, Q("8 mm")))
sketch10.addConstraint(Sketcher.Constraint("DistanceY", 1, 2, 1, 1, Q("23 mm")))
sketch10.addConstraint(Sketcher.Constraint("DistanceX", 4, 2, 4, 1, Q("13.3 mm")))
sketch10.addConstraint(Sketcher.Constraint("DistanceY", 5, 2, 5, 1, Q("13.5 mm")))
sketch10.addConstraint(Sketcher.Constraint("DistanceX", -1, 1, 0, 2, Q("2 mm")))
sketch10.addConstraint(Sketcher.Constraint("DistanceY", 4, 2, -1, 1, Q("8 mm")))
pocket1 = body.newObject("PartDesign::Pocket", "Pocket")
pocket1.Profile = sketch10
pocket1.Length = 3

sketch11 = body.newObject("Sketcher::SketchObject", "Sketch010")
sketch11.AttachmentSupport = (doc.getObject("XY_Plane"), [""])
sketch11.MapMode = "FlatFace"
sketch11.AttachmentOffset = App.Placement(App.Vector(0, 0, -31.5), App.Rotation())
add_polygon(sketch11, [(75, 14), (75, 2), (55, 2), (55, 14)])
add_polygon(sketch11, [(-35, 14), (-35, 2), (-68, 2), (-68, 14)])
sketch11.addConstraint(Sketcher.Constraint("Vertical", 0))
sketch11.addConstraint(Sketcher.Constraint("Horizontal", 1))
sketch11.addConstraint(Sketcher.Constraint("Vertical", 2))
sketch11.addConstraint(Sketcher.Constraint("Horizontal", 3))
sketch11.addConstraint(Sketcher.Constraint("Vertical", 4))
sketch11.addConstraint(Sketcher.Constraint("Horizontal", 5))
sketch11.addConstraint(Sketcher.Constraint("Vertical", 6))
sketch11.addConstraint(Sketcher.Constraint("Horizontal", 7))
sketch11.addConstraint(Sketcher.Constraint("Horizontal", 1, 2, 4, 2))
sketch11.addConstraint(Sketcher.Constraint("Horizontal", 3, 2, 6, 2))
sketch11.addConstraint(Sketcher.Constraint("DistanceX", 1, 2, 1, 1, Q("20 mm")))
sketch11.addConstraint(Sketcher.Constraint("DistanceX", 5, 2, 5, 1, Q("33 mm")))
sketch11.addConstraint(Sketcher.Constraint("DistanceY", 0, 2, 0, 1, Q("12 mm")))
sketch11.addConstraint(Sketcher.Constraint("DistanceX", -1, 1, 0, 2, Q("75 mm")))
sketch11.addConstraint(Sketcher.Constraint("DistanceY", -1, 1, 0, 2, Q("2 mm")))
sketch11.addConstraint(Sketcher.Constraint("DistanceX", 4, 2, -1, 1, Q("35 mm")))
pocket2 = body.newObject("PartDesign::Pocket", "Pocket001")
pocket2.Profile = sketch11
pocket2.Length = 3
pocket2.Reversed = True

sketch12 = body.newObject("Sketcher::SketchObject", "Sketch011")
sketch12.AttachmentSupport = (doc.getObject("YZ_Plane"), [""])
sketch12.MapMode = "FlatFace"
sketch12.AttachmentOffset = App.Placement(App.Vector(0, 0, -95), App.Rotation())
add_polygon(sketch12, [(9.5, -15.5), (2, -15.5), (2, -3.5), (9.5, -3.5)])
add_polygon(sketch12, [(9.5, 3.5), (2, 3.5), (2, 15.5), (9.5, 15.5)])
sketch12.addConstraint(Sketcher.Constraint("Horizontal", 0))
sketch12.addConstraint(Sketcher.Constraint("Vertical", 1))
sketch12.addConstraint(Sketcher.Constraint("Horizontal", 2))
sketch12.addConstraint(Sketcher.Constraint("Vertical", 3))
sketch12.addConstraint(Sketcher.Constraint("Horizontal", 4))
sketch12.addConstraint(Sketcher.Constraint("Vertical", 5))
sketch12.addConstraint(Sketcher.Constraint("Horizontal", 6))
sketch12.addConstraint(Sketcher.Constraint("Vertical", 7))
sketch12.addConstraint(Sketcher.Constraint("Symmetric", 1, 2, 4, 2, -1))
sketch12.addConstraint(Sketcher.Constraint("Symmetric", 3, 2, 6, 2, -1))
sketch12.addConstraint(Sketcher.Constraint("DistanceY", 1, 1, 1, 2, Q("12 mm")))
sketch12.addConstraint(Sketcher.Constraint("DistanceX", 0, 2, 0, 1, Q("7.5 mm")))
sketch12.addConstraint(Sketcher.Constraint("DistanceX", -1, 1, 0, 2, Q("2 mm")))
sketch12.addConstraint(Sketcher.Constraint("DistanceY", 1, 2, 4, 2, Q("7 mm")))
pocket3 = body.newObject("PartDesign::Pocket", "Pocket002")
pocket3.Profile = sketch12
pocket3.Length = 3
pocket3.Reversed = True

sketch13 = body.newObject("Sketcher::SketchObject", "Sketch012")
sketch13.AttachmentSupport = (doc.getObject("XZ_Plane"), [""])
sketch13.MapMode = "FlatFace"
sketch13.AttachmentOffset = App.Placement(App.Vector(0, 0, -22), App.Rotation())
add_polygon(sketch13, [(-95, -31.5), (-95, 31.5), (95, 31.5), (95, -31.5)])
sketch13.addConstraint(Sketcher.Constraint("Vertical", 0))
sketch13.addConstraint(Sketcher.Constraint("Horizontal", 1))
sketch13.addConstraint(Sketcher.Constraint("Vertical", 2))
sketch13.addConstraint(Sketcher.Constraint("Horizontal", 3))
sketch13.addConstraint(Sketcher.Constraint("Symmetric", 0, 2, 2, 2, -1, 1))
sketch13.addConstraint(Sketcher.Constraint("DistanceX", 1, 1, 1, 2, Q("190 mm")))
sketch13.addConstraint(Sketcher.Constraint("DistanceY", 0, 1, 0, 2, Q("63 mm")))
pad10 = body.newObject("PartDesign::Pad", "Pad009")
pad10.Profile = sketch13
pad10.Length = 2
pad10.Reversed = True

sketch14 = body.newObject("Sketcher::SketchObject", "Sketch013")
sketch14.AttachmentSupport = (doc.getObject("XZ_Plane"), [""])
sketch14.MapMode = "FlatFace"
sketch14.AttachmentOffset = App.Placement(App.Vector(0, 0, -22), App.Rotation())
add_polygon(sketch14, [(-93, -29.5), (-93, 29.5), (93, 29.5), (93, -29.5)])
sketch14.addConstraint(Sketcher.Constraint("Vertical", 0))
sketch14.addConstraint(Sketcher.Constraint("Horizontal", 1))
sketch14.addConstraint(Sketcher.Constraint("Vertical", 2))
sketch14.addConstraint(Sketcher.Constraint("Horizontal", 3))
sketch14.addConstraint(Sketcher.Constraint("Symmetric", 0, 2, 2, 2, -1, 1))
sketch14.addConstraint(Sketcher.Constraint("DistanceX", 1, 1, 1, 2, Q("186 mm")))
sketch14.addConstraint(Sketcher.Constraint("DistanceY", 0, 1, 0, 2, Q("59 mm")))
pocket4 = body.newObject("PartDesign::Pocket", "Pocket003")
pocket4.Profile = sketch14
pocket4.Length = 22
pocket4.Reversed = True

sketch15 = body.newObject("Sketcher::SketchObject", "Sketch014")
sketch15.AttachmentSupport = (doc.getObject("YZ_Plane"), [""])
sketch15.MapMode = "FlatFace"
sketch15.AttachmentOffset = App.Placement(App.Vector(0, 0, 95), App.Rotation())
add_polygon(sketch15, [(10, 21.5), (22, 21.5), (22, 31.5), (0, 31.5), (0, -31.5), (22, -31.5), (22, -21.5), (15.3, -21.5), (15.3, -8), (10, -8)])
sketch15.addConstraint(Sketcher.Constraint("Horizontal", 0))
sketch15.addConstraint(Sketcher.Constraint("Vertical", 1))
sketch15.addConstraint(Sketcher.Constraint("Horizontal", 2))
sketch15.addConstraint(Sketcher.Constraint("Vertical", 3))
sketch15.addConstraint(Sketcher.Constraint("Horizontal", 4))
sketch15.addConstraint(Sketcher.Constraint("Vertical", 5))
sketch15.addConstraint(Sketcher.Constraint("Horizontal", 6))
sketch15.addConstraint(Sketcher.Constraint("Vertical", 7))
sketch15.addConstraint(Sketcher.Constraint("Horizontal", 8))
sketch15.addConstraint(Sketcher.Constraint("Vertical", 9))
sketch15.addConstraint(Sketcher.Constraint("Symmetric", 2, 2, 3, 2, -1, 1))
sketch15.addConstraint(Sketcher.Constraint("Symmetric", 0, 2, 5, 2, -1))
sketch15.addConstraint(Sketcher.Constraint("DistanceX", 0, 1, 0, 2, Q("12 mm")))
sketch15.addConstraint(Sketcher.Constraint("DistanceX", 2, 2, 2, 1, Q("22 mm")))
sketch15.addConstraint(Sketcher.Constraint("DistanceY", 1, 1, 1, 2, Q("10 mm")))
sketch15.addConstraint(Sketcher.Constraint("DistanceY", 3, 2, 3, 1, Q("63 mm")))
sketch15.addConstraint(Sketcher.Constraint("DistanceX", 6, 2, 6, 1, Q("6.7 mm")))
sketch15.addConstraint(Sketcher.Constraint("DistanceY", 7, 1, 7, 2, Q("13.5 mm")))
pocket5 = body.newObject("PartDesign::Pocket", "Pocket004")
pocket5.Profile = sketch15
pocket5.Length = 2

sketch16 = body.newObject("Sketcher::SketchObject", "Sketch015")
sketch16.AttachmentSupport = (doc.getObject("XY_Plane"), [""])
sketch16.MapMode = "FlatFace"
sketch16.AttachmentOffset = App.Placement(App.Vector(0, 0, -31.5), App.Rotation())
add_polygon(sketch16, [(75, 14), (75, 22), (95, 22), (95, 0), (-95, 0), (-95, 22), (-68, 22), (-68, 14), (-35, 14), (-35, 22), (55, 22), (55, 14)])
sketch16.addConstraint(Sketcher.Constraint("Vertical", 0))
sketch16.addConstraint(Sketcher.Constraint("Horizontal", 1))
sketch16.addConstraint(Sketcher.Constraint("Vertical", 2))
sketch16.addConstraint(Sketcher.Constraint("Horizontal", 3))
sketch16.addConstraint(Sketcher.Constraint("Vertical", 4))
sketch16.addConstraint(Sketcher.Constraint("Horizontal", 5))
sketch16.addConstraint(Sketcher.Constraint("Vertical", 6))
sketch16.addConstraint(Sketcher.Constraint("Horizontal", 7))
sketch16.addConstraint(Sketcher.Constraint("Vertical", 8))
sketch16.addConstraint(Sketcher.Constraint("Horizontal", 9))
sketch16.addConstraint(Sketcher.Constraint("Vertical", 10))
sketch16.addConstraint(Sketcher.Constraint("Horizontal", 11))
sketch16.addConstraint(Sketcher.Constraint("Symmetric", 2, 2, 3, 2, -1, 1))
sketch16.addConstraint(Sketcher.Constraint("Horizontal", 1, 2, 4, 2))
sketch16.addConstraint(Sketcher.Constraint("Horizontal", 5, 2, 8, 2))
sketch16.addConstraint(Sketcher.Constraint("Horizontal", 7, 2, 10, 2))
sketch16.addConstraint(Sketcher.Constraint("Equal", 1, 11))
sketch16.addConstraint(Sketcher.Constraint("DistanceX", 1, 1, 1, 2, Q("20 mm")))
sketch16.addConstraint(Sketcher.Constraint("DistanceX", 3, 2, 3, 1, Q("190 mm")))
sketch16.addConstraint(Sketcher.Constraint("DistanceX", 5, 1, 5, 2, Q("27 mm")))
sketch16.addConstraint(Sketcher.Constraint("DistanceX", 7, 1, 7, 2, Q("33 mm")))
sketch16.addConstraint(Sketcher.Constraint("DistanceY", 0, 1, 0, 2, Q("8 mm")))
sketch16.addConstraint(Sketcher.Constraint("DistanceY", 2, 2, 2, 1, Q("22 mm")))
pocket6 = body.newObject("PartDesign::Pocket", "Pocket005")
pocket6.Profile = sketch16
pocket6.Length = 2
pocket6.Reversed = True

sketch17 = body.newObject("Sketcher::SketchObject", "Sketch016")
sketch17.AttachmentSupport = (doc.getObject("YZ_Plane"), [""])
sketch17.MapMode = "FlatFace"
sketch17.AttachmentOffset = App.Placement(App.Vector(0, 0, -95), App.Rotation())
add_polygon(sketch17, [(9.5, -15.5), (22, -15.5), (22, -31.5), (0, -31.5), (0, 31.5), (22, 31.5), (22, 15.5), (9.5, 15.5)])
sketch17.addConstraint(Sketcher.Constraint("Horizontal", 0))
sketch17.addConstraint(Sketcher.Constraint("Vertical", 1))
sketch17.addConstraint(Sketcher.Constraint("Horizontal", 2))
sketch17.addConstraint(Sketcher.Constraint("Vertical", 3))
sketch17.addConstraint(Sketcher.Constraint("Horizontal", 4))
sketch17.addConstraint(Sketcher.Constraint("Vertical", 5))
sketch17.addConstraint(Sketcher.Constraint("Horizontal", 6))
sketch17.addConstraint(Sketcher.Constraint("Vertical", 7))
sketch17.addConstraint(Sketcher.Constraint("Symmetric", 2, 2, 3, 2, -1, 1))
sketch17.addConstraint(Sketcher.Constraint("Symmetric", 0, 2, 5, 2, -1))
sketch17.addConstraint(Sketcher.Constraint("DistanceX", 2, 2, 2, 1, Q("22 mm")))
sketch17.addConstraint(Sketcher.Constraint("DistanceY", 1, 2, 1, 1, Q("16 mm")))
sketch17.addConstraint(Sketcher.Constraint("DistanceY", 3, 1, 3, 2, Q("63 mm")))
sketch17.addConstraint(Sketcher.Constraint("DistanceX", 0, 1, 0, 2, Q("12.5 mm")))
pocket7 = body.newObject("PartDesign::Pocket", "Pocket006")
pocket7.Profile = sketch17
pocket7.Length = 2
pocket7.Reversed = True

sketch18 = body.newObject("Sketcher::SketchObject", "Sketch017")
sketch18.AttachmentSupport = (doc.getObject("XY_Plane"), [""])
sketch18.MapMode = "FlatFace"
sketch18.AttachmentOffset = App.Placement(App.Vector(0, 0, 31.5), App.Rotation())
add_polygon(sketch18, [(-95, 22), (-95, 0), (95, 0), (95, 22)])
sketch18.addConstraint(Sketcher.Constraint("Vertical", 0))
sketch18.addConstraint(Sketcher.Constraint("Horizontal", 1))
sketch18.addConstraint(Sketcher.Constraint("Vertical", 2))
sketch18.addConstraint(Sketcher.Constraint("Horizontal", 3))
sketch18.addConstraint(Sketcher.Constraint("Symmetric", 0, 2, 1, 2, -1, 1))
sketch18.addConstraint(Sketcher.Constraint("DistanceX", 1, 1, 1, 2, Q("190 mm")))
sketch18.addConstraint(Sketcher.Constraint("DistanceY", 0, 2, 0, 1, Q("22 mm")))
pocket8 = body.newObject("PartDesign::Pocket", "Pocket007")
pocket8.Profile = sketch18
pocket8.Length = 2

sketch19 = body.newObject("Sketcher::SketchObject", "Sketch018")
sketch19.AttachmentSupport = (doc.getObject("XZ_Plane"), [""])
sketch19.MapMode = "FlatFace"
sketch19.addGeometry(Part.Circle(App.Vector(-90.5, 27, 0), App.Vector(0, 0, 1), 1.5), False)
sketch19.addGeometry(Part.Circle(App.Vector(-90.5, -27, 0), App.Vector(0, 0, 1), 1.5), False)
sketch19.addGeometry(Part.Circle(App.Vector(90.5, 27, 0), App.Vector(0, 0, 1), 1.5), False)
sketch19.addGeometry(Part.Circle(App.Vector(90.5, -27, 0), App.Vector(0, 0, 1), 1.5), False)
sketch19.addGeometry(Part.Circle(App.Vector(0, 27, 0), App.Vector(0, 0, 1), 1.5), False)
sketch19.addGeometry(Part.Circle(App.Vector(0, -27, 0), App.Vector(0, 0, 1), 1.5), False)
sketch19.addConstraint(Sketcher.Constraint("Equal", 0, 1))
sketch19.addConstraint(Sketcher.Constraint("Equal", 1, 2))
sketch19.addConstraint(Sketcher.Constraint("Equal", 2, 3))
sketch19.addConstraint(Sketcher.Constraint("Equal", 3, 4))
sketch19.addConstraint(Sketcher.Constraint("Equal", 4, 5))
sketch19.addConstraint(Sketcher.Constraint("Symmetric", 1, 3, 2, 3, -1, 1))
sketch19.addConstraint(Sketcher.Constraint("Symmetric", 0, 3, 3, 3, -1, 1))
sketch19.addConstraint(Sketcher.Constraint("Symmetric", 4, 3, 5, 3, -1, 1))
sketch19.addConstraint(Sketcher.Constraint("Symmetric", 0, 3, 2, 3, -2))
sketch19.addConstraint(Sketcher.Constraint("PointOnObject", 4, 3, -2))
sketch19.addConstraint(Sketcher.Constraint("Horizontal", 2, 3, 4, 3))
sketch19.addConstraint(Sketcher.Constraint("Diameter", 0, Q("3 mm")))
sketch19.addConstraint(Sketcher.Constraint("DistanceY", -1, 1, 0, 3, Q("27 mm")))
sketch19.addConstraint(Sketcher.Constraint("DistanceX", 0, 3, 2, 3, Q("181 mm")))
pocket9 = body.newObject("PartDesign::Pocket", "Pocket008")
pocket9.Profile = sketch19
pocket9.Length = 24

doc.recompute()
